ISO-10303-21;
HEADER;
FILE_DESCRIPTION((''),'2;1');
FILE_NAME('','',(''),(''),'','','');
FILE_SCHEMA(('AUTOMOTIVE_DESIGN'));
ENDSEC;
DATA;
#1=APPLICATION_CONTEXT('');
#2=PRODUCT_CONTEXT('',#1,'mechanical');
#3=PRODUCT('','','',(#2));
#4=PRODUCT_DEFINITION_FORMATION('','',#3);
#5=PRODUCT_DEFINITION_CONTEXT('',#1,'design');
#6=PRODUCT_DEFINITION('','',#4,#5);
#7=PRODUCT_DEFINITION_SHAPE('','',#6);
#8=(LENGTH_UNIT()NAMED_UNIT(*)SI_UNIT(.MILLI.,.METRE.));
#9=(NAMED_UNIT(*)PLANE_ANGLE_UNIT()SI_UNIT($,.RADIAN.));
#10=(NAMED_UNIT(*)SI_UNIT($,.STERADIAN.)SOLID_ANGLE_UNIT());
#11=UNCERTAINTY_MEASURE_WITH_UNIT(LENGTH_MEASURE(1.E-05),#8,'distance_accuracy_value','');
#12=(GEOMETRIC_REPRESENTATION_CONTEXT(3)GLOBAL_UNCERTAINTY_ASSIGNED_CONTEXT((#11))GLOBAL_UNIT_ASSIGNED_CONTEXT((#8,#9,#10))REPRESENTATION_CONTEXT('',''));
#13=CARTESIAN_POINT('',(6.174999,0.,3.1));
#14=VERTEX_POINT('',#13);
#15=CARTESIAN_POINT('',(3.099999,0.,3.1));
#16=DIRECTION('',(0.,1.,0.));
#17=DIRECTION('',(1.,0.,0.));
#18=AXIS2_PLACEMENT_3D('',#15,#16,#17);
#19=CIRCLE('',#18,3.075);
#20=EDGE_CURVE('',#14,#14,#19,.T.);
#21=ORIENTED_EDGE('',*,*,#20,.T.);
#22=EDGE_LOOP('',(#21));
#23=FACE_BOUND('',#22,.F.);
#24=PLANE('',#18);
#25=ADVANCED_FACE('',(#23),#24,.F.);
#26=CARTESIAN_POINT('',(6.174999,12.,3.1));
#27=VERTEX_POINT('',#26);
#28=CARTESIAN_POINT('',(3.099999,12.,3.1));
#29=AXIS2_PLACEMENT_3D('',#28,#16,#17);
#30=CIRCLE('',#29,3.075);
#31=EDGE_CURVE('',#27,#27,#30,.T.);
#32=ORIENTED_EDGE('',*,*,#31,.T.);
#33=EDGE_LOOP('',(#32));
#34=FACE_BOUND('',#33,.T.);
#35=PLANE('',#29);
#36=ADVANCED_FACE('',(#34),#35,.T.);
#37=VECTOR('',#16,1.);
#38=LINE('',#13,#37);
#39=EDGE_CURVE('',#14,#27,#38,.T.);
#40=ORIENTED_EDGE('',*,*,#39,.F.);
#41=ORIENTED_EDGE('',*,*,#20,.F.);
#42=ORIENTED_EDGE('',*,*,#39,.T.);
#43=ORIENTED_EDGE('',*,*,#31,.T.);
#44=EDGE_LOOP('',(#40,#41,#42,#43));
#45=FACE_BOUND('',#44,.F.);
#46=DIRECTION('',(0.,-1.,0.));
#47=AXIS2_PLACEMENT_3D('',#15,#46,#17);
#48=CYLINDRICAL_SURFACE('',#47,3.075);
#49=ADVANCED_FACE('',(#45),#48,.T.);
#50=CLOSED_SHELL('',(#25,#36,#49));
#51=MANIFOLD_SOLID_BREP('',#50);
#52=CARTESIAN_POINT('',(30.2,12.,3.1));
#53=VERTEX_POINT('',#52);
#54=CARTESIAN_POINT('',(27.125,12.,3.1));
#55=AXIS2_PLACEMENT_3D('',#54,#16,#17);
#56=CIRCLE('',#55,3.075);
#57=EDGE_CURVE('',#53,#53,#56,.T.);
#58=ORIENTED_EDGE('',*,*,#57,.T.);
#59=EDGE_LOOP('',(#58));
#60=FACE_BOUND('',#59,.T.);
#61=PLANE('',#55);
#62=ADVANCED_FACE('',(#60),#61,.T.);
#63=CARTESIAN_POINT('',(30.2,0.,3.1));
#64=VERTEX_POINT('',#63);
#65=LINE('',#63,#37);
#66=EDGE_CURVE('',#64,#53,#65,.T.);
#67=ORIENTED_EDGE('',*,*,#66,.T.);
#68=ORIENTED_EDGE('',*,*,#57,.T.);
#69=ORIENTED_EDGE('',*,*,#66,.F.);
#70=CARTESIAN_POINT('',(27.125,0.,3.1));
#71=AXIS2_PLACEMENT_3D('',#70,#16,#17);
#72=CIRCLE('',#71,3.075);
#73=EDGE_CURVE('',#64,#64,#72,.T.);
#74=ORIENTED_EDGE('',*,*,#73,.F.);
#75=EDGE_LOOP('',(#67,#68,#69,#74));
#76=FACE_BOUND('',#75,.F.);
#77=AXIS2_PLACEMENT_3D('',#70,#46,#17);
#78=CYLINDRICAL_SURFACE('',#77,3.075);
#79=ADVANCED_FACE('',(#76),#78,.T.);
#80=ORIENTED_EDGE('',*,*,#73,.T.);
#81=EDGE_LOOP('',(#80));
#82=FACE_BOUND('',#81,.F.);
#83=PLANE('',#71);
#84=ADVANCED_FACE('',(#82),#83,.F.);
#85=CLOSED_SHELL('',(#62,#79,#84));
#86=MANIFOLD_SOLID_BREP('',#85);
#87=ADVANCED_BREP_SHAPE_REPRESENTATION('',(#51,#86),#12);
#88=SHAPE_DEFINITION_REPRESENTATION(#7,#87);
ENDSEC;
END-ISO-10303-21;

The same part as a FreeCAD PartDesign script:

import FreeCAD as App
import Part
import Sketcher

V = App.Vector
Q = App.Units.Quantity

doc = App.newDocument("Part")
body = doc.addObject("PartDesign::Body", "Body")

sketch1 = body.newObject("Sketcher::SketchObject", "Sketch")
sketch1.AttachmentSupport = (doc.getObject("XZ_Plane"), [""])
sketch1.MapMode = "FlatFace"
sketch1.addGeometry(Part.Circle(V(3.1, 3.1, 0), V(0, 0, 1), 3.1), False)
sketch1.addConstraint([
    Sketcher.Constraint("Diameter", 0, Q("6.15 mm")),
    Sketcher.Constraint("DistanceX", -1, 1, 0, 3, Q("3.099999 mm")),
    Sketcher.Constraint("DistanceY", -1, 1, 0, 3, Q("3.1 mm")),
])
pad1 = body.newObject("PartDesign::Pad", "Pad")
pad1.Profile = sketch1
pad1.Length = 12
pad1.Reversed = True
body2 = doc.addObject("PartDesign::Body", "Body001")

sketch2 = body2.newObject("Sketcher::SketchObject", "Sketch001")
sketch2.AttachmentSupport = (doc.getObject("XZ_Plane001"), [""])
sketch2.MapMode = "FlatFace"
sketch2.addGeometry(Part.Circle(V(27.1, 3.1, 0), V(0, 0, 1), 3.1), False)
sketch2.addConstraint([
    Sketcher.Constraint("Diameter", 0, Q("6.15 mm")),
    Sketcher.Constraint("DistanceY", -1, 1, 0, 3, Q("3.1 mm")),
    Sketcher.Constraint("DistanceX", -1, 1, 0, 3, Q("27.125 mm")),
])
pad2 = body2.newObject("PartDesign::Pad", "Pad001")
pad2.Profile = sketch2
pad2.Length = 12
pad2.Reversed = True

doc.recompute()
